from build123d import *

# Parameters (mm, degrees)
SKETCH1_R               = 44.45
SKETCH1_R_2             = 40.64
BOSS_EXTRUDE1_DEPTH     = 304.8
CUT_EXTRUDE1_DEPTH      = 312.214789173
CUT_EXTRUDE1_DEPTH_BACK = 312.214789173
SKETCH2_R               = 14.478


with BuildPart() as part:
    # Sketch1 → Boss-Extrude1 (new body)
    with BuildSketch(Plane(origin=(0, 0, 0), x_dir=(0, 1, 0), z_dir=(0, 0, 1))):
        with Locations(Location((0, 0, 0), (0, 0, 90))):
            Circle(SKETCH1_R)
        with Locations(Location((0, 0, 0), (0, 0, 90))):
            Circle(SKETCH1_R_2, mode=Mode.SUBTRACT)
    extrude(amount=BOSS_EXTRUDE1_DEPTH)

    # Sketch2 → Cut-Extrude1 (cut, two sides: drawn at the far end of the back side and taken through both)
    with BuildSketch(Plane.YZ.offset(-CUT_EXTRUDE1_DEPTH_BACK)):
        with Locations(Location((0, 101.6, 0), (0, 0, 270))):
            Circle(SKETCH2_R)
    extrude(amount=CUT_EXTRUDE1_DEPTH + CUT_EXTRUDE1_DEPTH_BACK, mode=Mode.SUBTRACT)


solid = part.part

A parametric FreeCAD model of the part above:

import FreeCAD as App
import Part
import Sketcher
from FreeCAD import Vector
Q = App.Units.Quantity

doc = App.newDocument("Part")
body = doc.addObject("PartDesign::Body", "Body")

# Sketch on XY plane
sketch1 = doc.addObject("Sketcher::SketchObject", "Sketch")
body.addObject(sketch1)
sketch1.AttachmentSupport = (doc.XY_Plane, [""])
sketch1.MapMode = "FlatFace"
sketch1.addGeometry([
    Part.Circle(Vector(0, 0, 0), Vector(0, 0, 1), 44.45),
    Part.Circle(Vector(0, 0, 0), Vector(0, 0, 1), 40.64),
], False)
sketch1.addConstraint([
    Sketcher.Constraint("Coincident", 0, 3, -1, 1),
    Sketcher.Constraint("Coincident", 1, 3, -1, 1),
    Sketcher.Constraint("Diameter", 0, Q("3.5 in")),
    Sketcher.Constraint("Diameter", 1, Q("3.2 in")),
])
pad1 = doc.addObject("PartDesign::Pad", "Pad")
body.addObject(pad1)
pad1.Profile = sketch1
pad1.Length = Q("12 in")

# Sketch on YZ plane
sketch2 = doc.addObject("Sketcher::SketchObject", "Sketch001")
body.addObject(sketch2)
sketch2.AttachmentSupport = (doc.YZ_Plane, [""])
sketch2.MapMode = "FlatFace"
sketch2.addGeometry(Part.Circle(Vector(0, 101.6, 0), Vector(0, 0, 1), 14.478), False)
sketch2.addConstraint([
    Sketcher.Constraint("PointOnObject", 0, 3, -2),
    Sketcher.Constraint("Diameter", 0, Q("1.14 in")),
    Sketcher.Constraint("DistanceY", -1, 1, 0, 3, Q("4 in")),
])
pocket1 = doc.addObject("PartDesign::Pocket", "Pocket")
body.addObject(pocket1)
pocket1.Profile = sketch2
pocket1.Type = "ThroughAll"
pocket1.Midplane = True

doc.recompute()
